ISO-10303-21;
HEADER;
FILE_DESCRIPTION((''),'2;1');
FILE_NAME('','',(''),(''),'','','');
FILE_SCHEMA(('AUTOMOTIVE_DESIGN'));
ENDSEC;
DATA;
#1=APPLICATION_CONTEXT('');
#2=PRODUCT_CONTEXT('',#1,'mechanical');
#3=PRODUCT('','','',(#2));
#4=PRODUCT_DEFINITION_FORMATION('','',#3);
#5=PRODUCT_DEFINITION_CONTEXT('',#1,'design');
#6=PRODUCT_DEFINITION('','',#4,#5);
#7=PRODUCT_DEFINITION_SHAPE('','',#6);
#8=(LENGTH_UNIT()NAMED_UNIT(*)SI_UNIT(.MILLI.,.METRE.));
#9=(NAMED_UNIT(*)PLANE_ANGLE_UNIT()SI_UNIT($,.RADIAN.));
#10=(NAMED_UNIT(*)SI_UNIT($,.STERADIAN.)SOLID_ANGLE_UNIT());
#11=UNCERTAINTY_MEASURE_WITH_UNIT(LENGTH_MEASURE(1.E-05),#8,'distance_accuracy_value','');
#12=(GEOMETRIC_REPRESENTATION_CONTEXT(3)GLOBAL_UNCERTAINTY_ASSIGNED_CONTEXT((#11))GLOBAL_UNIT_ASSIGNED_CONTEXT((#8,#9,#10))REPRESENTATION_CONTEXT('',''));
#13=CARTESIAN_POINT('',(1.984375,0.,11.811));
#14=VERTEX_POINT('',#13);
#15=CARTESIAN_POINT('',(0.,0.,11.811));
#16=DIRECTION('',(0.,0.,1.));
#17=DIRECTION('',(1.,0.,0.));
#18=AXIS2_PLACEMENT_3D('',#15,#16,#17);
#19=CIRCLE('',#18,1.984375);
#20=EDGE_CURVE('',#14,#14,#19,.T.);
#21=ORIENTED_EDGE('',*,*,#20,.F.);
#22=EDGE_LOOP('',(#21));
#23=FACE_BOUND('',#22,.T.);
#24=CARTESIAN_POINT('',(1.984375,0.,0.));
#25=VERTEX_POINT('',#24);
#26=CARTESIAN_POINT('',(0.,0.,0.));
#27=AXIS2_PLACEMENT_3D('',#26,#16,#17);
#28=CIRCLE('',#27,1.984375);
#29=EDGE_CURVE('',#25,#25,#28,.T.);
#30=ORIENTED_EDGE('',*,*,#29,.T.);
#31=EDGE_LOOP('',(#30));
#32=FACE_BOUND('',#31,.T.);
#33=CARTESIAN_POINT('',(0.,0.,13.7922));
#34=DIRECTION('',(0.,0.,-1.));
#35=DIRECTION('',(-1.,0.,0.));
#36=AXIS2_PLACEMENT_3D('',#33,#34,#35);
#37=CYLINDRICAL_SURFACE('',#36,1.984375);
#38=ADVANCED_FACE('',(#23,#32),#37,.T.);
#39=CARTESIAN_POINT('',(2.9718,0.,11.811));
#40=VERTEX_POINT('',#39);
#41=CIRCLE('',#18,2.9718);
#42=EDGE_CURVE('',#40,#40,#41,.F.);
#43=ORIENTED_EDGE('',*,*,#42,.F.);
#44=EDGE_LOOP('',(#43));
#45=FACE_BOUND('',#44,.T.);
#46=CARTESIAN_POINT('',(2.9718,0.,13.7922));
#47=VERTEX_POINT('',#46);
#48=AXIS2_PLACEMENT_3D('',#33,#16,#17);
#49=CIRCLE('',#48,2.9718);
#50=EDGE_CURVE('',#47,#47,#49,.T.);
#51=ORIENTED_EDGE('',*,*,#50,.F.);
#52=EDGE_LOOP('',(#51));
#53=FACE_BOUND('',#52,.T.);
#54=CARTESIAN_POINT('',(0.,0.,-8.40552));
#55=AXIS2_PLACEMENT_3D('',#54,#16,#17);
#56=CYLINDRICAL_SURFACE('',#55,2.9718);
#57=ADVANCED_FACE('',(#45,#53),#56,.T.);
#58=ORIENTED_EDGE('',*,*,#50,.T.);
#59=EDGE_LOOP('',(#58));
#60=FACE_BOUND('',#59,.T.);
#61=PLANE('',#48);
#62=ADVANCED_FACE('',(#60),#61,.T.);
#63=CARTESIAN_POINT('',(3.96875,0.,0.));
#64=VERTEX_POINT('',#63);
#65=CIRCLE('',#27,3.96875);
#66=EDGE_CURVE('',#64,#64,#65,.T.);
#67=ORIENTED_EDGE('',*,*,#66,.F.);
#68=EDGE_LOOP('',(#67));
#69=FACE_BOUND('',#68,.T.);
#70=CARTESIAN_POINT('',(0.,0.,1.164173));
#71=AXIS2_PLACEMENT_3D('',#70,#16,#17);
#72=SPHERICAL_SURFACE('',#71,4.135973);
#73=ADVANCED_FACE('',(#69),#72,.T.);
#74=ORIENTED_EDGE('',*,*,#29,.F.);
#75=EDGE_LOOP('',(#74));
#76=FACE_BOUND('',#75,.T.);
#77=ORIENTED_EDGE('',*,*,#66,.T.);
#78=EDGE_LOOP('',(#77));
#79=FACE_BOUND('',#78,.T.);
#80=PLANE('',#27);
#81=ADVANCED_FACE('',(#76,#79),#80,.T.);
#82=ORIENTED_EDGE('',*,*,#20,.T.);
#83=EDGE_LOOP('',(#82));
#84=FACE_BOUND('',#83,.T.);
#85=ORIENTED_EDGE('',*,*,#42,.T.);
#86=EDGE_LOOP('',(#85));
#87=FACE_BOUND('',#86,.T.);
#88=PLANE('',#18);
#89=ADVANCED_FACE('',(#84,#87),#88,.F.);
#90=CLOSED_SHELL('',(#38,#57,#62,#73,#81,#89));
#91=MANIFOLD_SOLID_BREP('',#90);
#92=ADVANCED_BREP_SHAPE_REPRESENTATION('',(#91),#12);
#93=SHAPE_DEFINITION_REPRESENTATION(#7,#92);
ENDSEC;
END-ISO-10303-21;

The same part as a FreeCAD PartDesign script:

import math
import FreeCAD as App
import Part
import Sketcher
from FreeCAD import Vector
Q = App.Units.Quantity

doc = App.newDocument("Part")
body = doc.addObject("PartDesign::Body", "Body")

sketch1 = body.newObject("Sketcher::SketchObject", "Sketch")
sketch1.AttachmentSupport = (doc.getObject("XY_Plane"), [""])
sketch1.MapMode = "FlatFace"
sketch1.addGeometry(Part.Circle(Vector(0, 0, 0), Vector(0, 0, 1), 2), False)
sketch1.addConstraint([
    Sketcher.Constraint("Coincident", 0, 3, -1, 1),
    Sketcher.Constraint("Diameter", 0, Q("0.15625 in")),
])
pad1 = body.newObject("PartDesign::Pad", "Pad")
pad1.Profile = sketch1
pad1.Length = Q("0.543 in")

sketch2 = body.newObject("Sketcher::SketchObject", "Sketch001")
sketch2.AttachmentSupport = (doc.getObject("XZ_Plane"), [""])
sketch2.MapMode = "FlatFace"
sketch2.addGeometry([
    Part.LineSegment(Vector(0, -3, 0), Vector(0, 0, 0)),
    Part.LineSegment(Vector(0, 0, 0), Vector(4, 0, 0)),
    Part.ArcOfCircle(Part.Circle(Vector(0, 1.2, 0), Vector(0, 0, 1), 4.1), math.radians(-90), math.radians(-16)),
], False)
sketch2.addConstraint([
    Sketcher.Constraint("Coincident", 0, 2, 1, 1),
    Sketcher.Constraint("Coincident", 1, 2, 2, 2),
    Sketcher.Constraint("Coincident", 2, 1, 0, 1),
    Sketcher.Constraint("Vertical", 0),
    Sketcher.Constraint("Horizontal", 1),
    Sketcher.Constraint("Coincident", 0, 2, -1, 1),
    Sketcher.Constraint("PointOnObject", 2, 3, -2),
    Sketcher.Constraint("DistanceX", 1, 1, 1, 2, Q("0.15625 in")),
    Sketcher.Constraint("DistanceY", 0, 1, 0, 2, Q("0.117 in")),
])
revolution = body.newObject("PartDesign::Revolution", "Revolution")
revolution.Profile = sketch2
revolution.ReferenceAxis = (sketch2, ["V_Axis"])
revolution.Angle = 360

sketch3 = body.newObject("Sketcher::SketchObject", "Sketch002")
sketch3.AttachmentSupport = (doc.getObject("XY_Plane"), [""])
sketch3.MapMode = "FlatFace"
sketch3.AttachmentOffset = App.Placement(Vector(0, 0, 0.543 * 25.4), App.Rotation())
sketch3.addGeometry(Part.Circle(Vector(0, 0, 0), Vector(0, 0, 1), 3), False)
sketch3.addConstraint([
    Sketcher.Constraint("Coincident", 0, 3, -1, 1),
    Sketcher.Constraint("Diameter", 0, Q("0.234 in")),
])
pad2 = body.newObject("PartDesign::Pad", "Pad001")
pad2.Profile = sketch3
pad2.Length = Q("0.078 in")
pad2.Reversed = True

doc.recompute()
